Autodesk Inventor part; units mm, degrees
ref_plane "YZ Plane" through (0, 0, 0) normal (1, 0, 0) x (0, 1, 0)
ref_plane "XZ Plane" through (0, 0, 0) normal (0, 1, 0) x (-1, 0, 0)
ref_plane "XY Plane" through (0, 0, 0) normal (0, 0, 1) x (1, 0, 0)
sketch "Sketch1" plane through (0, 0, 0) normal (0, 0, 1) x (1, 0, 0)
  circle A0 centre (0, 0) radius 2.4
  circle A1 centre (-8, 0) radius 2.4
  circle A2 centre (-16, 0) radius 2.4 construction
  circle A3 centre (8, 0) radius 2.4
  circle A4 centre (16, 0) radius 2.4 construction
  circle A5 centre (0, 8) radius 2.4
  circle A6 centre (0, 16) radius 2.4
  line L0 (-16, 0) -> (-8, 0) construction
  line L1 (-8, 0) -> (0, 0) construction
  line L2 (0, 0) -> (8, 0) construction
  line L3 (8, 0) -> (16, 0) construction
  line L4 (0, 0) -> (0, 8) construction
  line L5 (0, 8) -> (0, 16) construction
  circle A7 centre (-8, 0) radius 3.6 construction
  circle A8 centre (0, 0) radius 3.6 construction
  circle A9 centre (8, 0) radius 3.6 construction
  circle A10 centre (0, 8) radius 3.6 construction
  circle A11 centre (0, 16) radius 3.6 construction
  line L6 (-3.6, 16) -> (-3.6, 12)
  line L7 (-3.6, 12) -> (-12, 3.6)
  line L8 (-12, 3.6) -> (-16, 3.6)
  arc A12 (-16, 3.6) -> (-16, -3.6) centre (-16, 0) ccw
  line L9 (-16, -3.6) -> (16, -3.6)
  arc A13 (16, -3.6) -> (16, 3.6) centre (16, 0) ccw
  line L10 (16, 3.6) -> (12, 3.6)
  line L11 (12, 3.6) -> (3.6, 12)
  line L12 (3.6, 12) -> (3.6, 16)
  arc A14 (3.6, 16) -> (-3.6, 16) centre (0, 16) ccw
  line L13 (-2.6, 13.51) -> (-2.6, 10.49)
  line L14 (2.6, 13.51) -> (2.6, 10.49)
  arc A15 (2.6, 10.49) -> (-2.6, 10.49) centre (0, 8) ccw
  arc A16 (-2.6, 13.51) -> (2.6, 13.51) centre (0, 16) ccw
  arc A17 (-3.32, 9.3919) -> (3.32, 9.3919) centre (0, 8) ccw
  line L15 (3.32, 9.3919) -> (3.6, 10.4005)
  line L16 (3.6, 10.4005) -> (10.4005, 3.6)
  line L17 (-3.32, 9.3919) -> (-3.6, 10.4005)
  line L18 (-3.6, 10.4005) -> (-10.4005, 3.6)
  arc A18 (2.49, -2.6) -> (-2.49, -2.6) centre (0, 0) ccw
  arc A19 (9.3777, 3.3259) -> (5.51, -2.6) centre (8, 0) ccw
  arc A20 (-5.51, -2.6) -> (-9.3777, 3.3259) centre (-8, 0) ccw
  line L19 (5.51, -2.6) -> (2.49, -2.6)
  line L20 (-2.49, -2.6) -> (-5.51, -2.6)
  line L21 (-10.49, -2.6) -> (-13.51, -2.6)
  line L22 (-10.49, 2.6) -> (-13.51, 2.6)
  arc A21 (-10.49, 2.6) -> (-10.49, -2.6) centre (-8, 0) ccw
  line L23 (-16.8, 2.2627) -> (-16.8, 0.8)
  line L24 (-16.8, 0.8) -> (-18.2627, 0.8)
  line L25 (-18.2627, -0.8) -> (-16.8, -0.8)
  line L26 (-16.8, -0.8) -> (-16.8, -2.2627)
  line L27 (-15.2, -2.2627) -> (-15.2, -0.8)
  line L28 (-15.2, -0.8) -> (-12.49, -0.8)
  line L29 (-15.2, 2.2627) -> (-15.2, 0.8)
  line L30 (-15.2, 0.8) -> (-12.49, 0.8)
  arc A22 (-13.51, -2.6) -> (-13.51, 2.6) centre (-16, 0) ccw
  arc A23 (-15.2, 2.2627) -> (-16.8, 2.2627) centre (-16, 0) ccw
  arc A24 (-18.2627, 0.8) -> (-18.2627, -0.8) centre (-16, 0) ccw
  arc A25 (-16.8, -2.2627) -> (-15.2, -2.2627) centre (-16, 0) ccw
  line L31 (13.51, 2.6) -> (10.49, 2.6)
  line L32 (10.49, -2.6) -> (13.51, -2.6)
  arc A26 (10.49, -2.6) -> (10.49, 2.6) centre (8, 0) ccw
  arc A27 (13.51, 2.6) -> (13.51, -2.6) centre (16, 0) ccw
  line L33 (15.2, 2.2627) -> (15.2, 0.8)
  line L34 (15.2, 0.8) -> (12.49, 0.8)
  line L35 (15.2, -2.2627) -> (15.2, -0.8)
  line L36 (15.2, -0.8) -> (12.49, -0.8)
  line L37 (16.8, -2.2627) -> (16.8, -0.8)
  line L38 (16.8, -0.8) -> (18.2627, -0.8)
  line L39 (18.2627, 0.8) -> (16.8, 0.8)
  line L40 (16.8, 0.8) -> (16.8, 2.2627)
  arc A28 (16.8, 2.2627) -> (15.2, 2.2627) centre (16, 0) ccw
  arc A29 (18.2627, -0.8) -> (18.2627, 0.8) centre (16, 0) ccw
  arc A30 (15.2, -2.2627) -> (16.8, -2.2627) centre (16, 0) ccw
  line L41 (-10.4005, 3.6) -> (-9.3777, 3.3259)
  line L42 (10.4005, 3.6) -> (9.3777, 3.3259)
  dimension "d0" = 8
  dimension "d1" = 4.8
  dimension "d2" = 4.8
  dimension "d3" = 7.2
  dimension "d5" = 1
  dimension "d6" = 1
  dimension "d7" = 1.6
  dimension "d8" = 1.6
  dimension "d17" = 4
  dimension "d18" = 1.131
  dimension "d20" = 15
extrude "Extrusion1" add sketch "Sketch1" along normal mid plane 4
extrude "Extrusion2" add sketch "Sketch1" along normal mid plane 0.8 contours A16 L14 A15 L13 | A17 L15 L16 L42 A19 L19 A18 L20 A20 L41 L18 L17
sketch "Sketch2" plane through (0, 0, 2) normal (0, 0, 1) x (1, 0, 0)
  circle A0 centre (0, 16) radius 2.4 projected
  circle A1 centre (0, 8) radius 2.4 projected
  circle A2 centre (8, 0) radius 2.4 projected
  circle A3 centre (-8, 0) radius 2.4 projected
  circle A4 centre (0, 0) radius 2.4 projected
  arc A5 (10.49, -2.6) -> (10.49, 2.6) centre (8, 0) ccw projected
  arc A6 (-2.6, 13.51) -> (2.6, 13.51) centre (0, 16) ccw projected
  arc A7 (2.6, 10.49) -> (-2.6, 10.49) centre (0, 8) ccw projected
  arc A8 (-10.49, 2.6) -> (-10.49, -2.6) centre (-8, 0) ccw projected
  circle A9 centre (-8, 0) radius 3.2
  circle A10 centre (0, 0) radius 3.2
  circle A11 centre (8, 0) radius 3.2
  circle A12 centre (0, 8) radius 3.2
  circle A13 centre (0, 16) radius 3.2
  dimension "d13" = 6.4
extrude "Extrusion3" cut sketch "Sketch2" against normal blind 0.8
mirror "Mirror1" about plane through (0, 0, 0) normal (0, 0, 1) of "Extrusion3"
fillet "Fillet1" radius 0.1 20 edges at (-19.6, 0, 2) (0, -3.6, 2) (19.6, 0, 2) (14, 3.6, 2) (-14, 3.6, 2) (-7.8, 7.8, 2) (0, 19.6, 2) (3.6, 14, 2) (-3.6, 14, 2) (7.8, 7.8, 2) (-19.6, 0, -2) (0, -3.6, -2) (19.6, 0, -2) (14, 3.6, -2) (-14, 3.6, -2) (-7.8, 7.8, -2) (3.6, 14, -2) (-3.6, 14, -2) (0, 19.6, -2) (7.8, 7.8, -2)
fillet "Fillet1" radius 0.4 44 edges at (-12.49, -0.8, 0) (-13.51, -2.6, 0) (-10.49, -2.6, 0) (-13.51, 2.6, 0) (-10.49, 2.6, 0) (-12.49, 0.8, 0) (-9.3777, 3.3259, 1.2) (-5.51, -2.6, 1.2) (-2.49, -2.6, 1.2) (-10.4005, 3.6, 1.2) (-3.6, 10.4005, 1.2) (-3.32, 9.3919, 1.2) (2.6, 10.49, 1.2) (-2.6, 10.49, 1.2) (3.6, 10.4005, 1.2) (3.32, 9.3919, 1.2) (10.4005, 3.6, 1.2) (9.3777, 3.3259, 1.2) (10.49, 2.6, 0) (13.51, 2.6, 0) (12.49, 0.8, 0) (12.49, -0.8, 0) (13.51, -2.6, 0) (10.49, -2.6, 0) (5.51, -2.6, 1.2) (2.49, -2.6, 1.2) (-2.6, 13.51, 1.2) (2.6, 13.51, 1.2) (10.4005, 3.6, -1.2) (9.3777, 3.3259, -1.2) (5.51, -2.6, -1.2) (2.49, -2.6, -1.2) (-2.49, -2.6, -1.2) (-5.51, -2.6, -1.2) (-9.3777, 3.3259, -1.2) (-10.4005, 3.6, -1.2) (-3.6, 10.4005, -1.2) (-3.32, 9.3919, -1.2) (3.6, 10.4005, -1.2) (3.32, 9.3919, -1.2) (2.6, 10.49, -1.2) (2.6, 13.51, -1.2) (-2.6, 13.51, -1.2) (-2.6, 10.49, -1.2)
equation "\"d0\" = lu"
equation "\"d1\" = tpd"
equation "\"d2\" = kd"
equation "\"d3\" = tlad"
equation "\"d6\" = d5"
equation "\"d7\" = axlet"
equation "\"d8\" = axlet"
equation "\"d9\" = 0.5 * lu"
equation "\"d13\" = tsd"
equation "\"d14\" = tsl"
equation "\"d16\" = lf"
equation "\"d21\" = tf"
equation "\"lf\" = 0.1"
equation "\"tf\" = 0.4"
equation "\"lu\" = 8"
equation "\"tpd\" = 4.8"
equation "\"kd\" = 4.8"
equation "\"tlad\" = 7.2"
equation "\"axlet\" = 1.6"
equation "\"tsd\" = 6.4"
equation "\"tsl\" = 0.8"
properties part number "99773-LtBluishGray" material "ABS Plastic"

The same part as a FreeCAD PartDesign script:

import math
import FreeCAD as App
import Part
import Sketcher
from FreeCAD import Vector


def edges_at(feature, points):
    """Names of the edges that pass closest to the given points."""
    edges = feature.Shape.Edges
    near = lambda p: min(range(len(edges)), key=lambda i: edges[i].distToShape(Part.Vertex(*p))[0])
    return sorted({f"Edge{near(p) + 1}" for p in points})

doc = App.newDocument("Part")
body = doc.addObject("PartDesign::Body", "Body")

sketch1 = doc.addObject("Sketcher::SketchObject", "Sketch")
body.addObject(sketch1)
sketch1.AttachmentSupport = (doc.XY_Plane, [""])
sketch1.MapMode = "FlatFace"
sketch1.addGeometry([
    Part.ArcOfCircle(Part.Circle(Vector(0, 16, 0), Vector(0, 0, 1), 3.6), math.radians(0), math.radians(180)),
    Part.LineSegment(Vector(-3.6, 16, 0), Vector(-3.6, 12, 0)),
    Part.LineSegment(Vector(-3.6, 12, 0), Vector(-12, 3.6, 0)),
    Part.LineSegment(Vector(-12, 3.6, 0), Vector(-16, 3.6, 0)),
    Part.ArcOfCircle(Part.Circle(Vector(-16, 0, 0), Vector(0, 0, 1), 3.6), math.radians(90), math.radians(270)),
    Part.LineSegment(Vector(-16, -3.6, 0), Vector(16, -3.6, 0)),
    Part.ArcOfCircle(Part.Circle(Vector(16, 0, 0), Vector(0, 0, 1), 3.6), math.radians(-90), math.radians(90)),
    Part.LineSegment(Vector(16, 3.6, 0), Vector(12, 3.6, 0)),
    Part.LineSegment(Vector(12, 3.6, 0), Vector(3.6, 12, 0)),
    Part.LineSegment(Vector(3.6, 12, 0), Vector(3.6, 16, 0)),
    Part.ArcOfCircle(Part.Circle(Vector(-8, 0, 0), Vector(0, 0, 1), 3.6), math.radians(134), math.radians(226)),
    Part.LineSegment(Vector(-10.5, -2.6, 0), Vector(-13.5, -2.6, 0)),
    Part.ArcOfCircle(Part.Circle(Vector(-16, 0, 0), Vector(0, 0, 1), 3.6), math.radians(-46), math.radians(-13)),
    Part.LineSegment(Vector(-12.5, -0.8, 0), Vector(-15.2, -0.8, 0)),
    Part.LineSegment(Vector(-15.2, -0.8, 0), Vector(-15.2, -2.3, 0)),
    Part.ArcOfCircle(Part.Circle(Vector(-16, 0, 0), Vector(0, 0, 1), 2.4), math.radians(-109), math.radians(-71)),
    Part.LineSegment(Vector(-16.8, -2.3, 0), Vector(-16.8, -0.8, 0)),
    Part.LineSegment(Vector(-16.8, -0.8, 0), Vector(-18.3, -0.8, 0)),
    Part.ArcOfCircle(Part.Circle(Vector(-16, 0, 0), Vector(0, 0, 1), 2.4), math.radians(161), math.radians(199)),
    Part.LineSegment(Vector(-18.3, 0.8, 0), Vector(-16.8, 0.8, 0)),
    Part.LineSegment(Vector(-16.8, 0.8, 0), Vector(-16.8, 2.3, 0)),
    Part.ArcOfCircle(Part.Circle(Vector(-16, 0, 0), Vector(0, 0, 1), 2.4), math.radians(71), math.radians(109)),
    Part.LineSegment(Vector(-15.2, 2.3, 0), Vector(-15.2, 0.8, 0)),
    Part.LineSegment(Vector(-15.2, 0.8, 0), Vector(-12.5, 0.8, 0)),
    Part.ArcOfCircle(Part.Circle(Vector(-16, 0, 0), Vector(0, 0, 1), 3.6), math.radians(13), math.radians(46)),
    Part.LineSegment(Vector(-13.5, 2.6, 0), Vector(-10.5, 2.6, 0)),
    Part.Circle(Vector(-8, 0, 0), Vector(0, 0, 1), 2.4),
    Part.Circle(Vector(0, 0, 0), Vector(0, 0, 1), 2.4),
    Part.Circle(Vector(8, 0, 0), Vector(0, 0, 1), 2.4),
    Part.LineSegment(Vector(10.5, 2.6, 0), Vector(13.5, 2.6, 0)),
    Part.ArcOfCircle(Part.Circle(Vector(16, 0, 0), Vector(0, 0, 1), 3.6), math.radians(134), math.radians(167)),
    Part.LineSegment(Vector(12.5, 0.8, 0), Vector(15.2, 0.8, 0)),
    Part.LineSegment(Vector(15.2, 0.8, 0), Vector(15.2, 2.3, 0)),
    Part.ArcOfCircle(Part.Circle(Vector(16, 0, 0), Vector(0, 0, 1), 2.4), math.radians(71), math.radians(109)),
    Part.LineSegment(Vector(16.8, 2.3, 0), Vector(16.8, 0.8, 0)),
    Part.LineSegment(Vector(16.8, 0.8, 0), Vector(18.3, 0.8, 0)),
    Part.ArcOfCircle(Part.Circle(Vector(16, 0, 0), Vector(0, 0, 1), 2.4), math.radians(-19), math.radians(19)),
    Part.LineSegment(Vector(18.3, -0.8, 0), Vector(16.8, -0.8, 0)),
    Part.LineSegment(Vector(16.8, -0.8, 0), Vector(16.8, -2.3, 0)),
    Part.ArcOfCircle(Part.Circle(Vector(16, 0, 0), Vector(0, 0, 1), 2.4), math.radians(-109), math.radians(-71)),
    Part.LineSegment(Vector(15.2, -2.3, 0), Vector(15.2, -0.8, 0)),
    Part.LineSegment(Vector(15.2, -0.8, 0), Vector(12.5, -0.8, 0)),
    Part.ArcOfCircle(Part.Circle(Vector(16, 0, 0), Vector(0, 0, 1), 3.6), math.radians(-167), math.radians(-134)),
    Part.LineSegment(Vector(13.5, -2.6, 0), Vector(10.5, -2.6, 0)),
    Part.ArcOfCircle(Part.Circle(Vector(8, 0, 0), Vector(0, 0, 1), 3.6), math.radians(-46), math.radians(46)),
    Part.LineSegment(Vector(-3.6, 10.4, 0), Vector(-3.3, 9.4, 0)),
    Part.ArcOfCircle(Part.Circle(Vector(0, 8, 0), Vector(0, 0, 1), 3.6), math.radians(157), math.radians(383)),
    Part.LineSegment(Vector(3.3, 9.4, 0), Vector(3.6, 10.4, 0)),
    Part.LineSegment(Vector(3.6, 10.4, 0), Vector(10.4, 3.6, 0)),
    Part.LineSegment(Vector(10.4, 3.6, 0), Vector(9.4, 3.3, 0)),
    Part.ArcOfCircle(Part.Circle(Vector(8, 0, 0), Vector(0, 0, 1), 3.6), math.radians(67), math.radians(226)),
    Part.LineSegment(Vector(5.5, -2.6, 0), Vector(2.5, -2.6, 0)),
    Part.ArcOfCircle(Part.Circle(Vector(0, 0, 0), Vector(0, 0, 1), 3.6), math.radians(-46), math.radians(226)),
    Part.LineSegment(Vector(-2.5, -2.6, 0), Vector(-5.5, -2.6, 0)),
    Part.ArcOfCircle(Part.Circle(Vector(-8, 0, 0), Vector(0, 0, 1), 3.6), math.radians(-46), math.radians(113)),
    Part.LineSegment(Vector(-9.4, 3.3, 0), Vector(-10.4, 3.6, 0)),
    Part.LineSegment(Vector(-10.4, 3.6, 0), Vector(-3.6, 10.4, 0)),
    Part.Circle(Vector(0, 8, 0), Vector(0, 0, 1), 2.4),
    Part.LineSegment(Vector(-2.6, 10.5, 0), Vector(-2.6, 13.5, 0)),
    Part.ArcOfCircle(Part.Circle(Vector(0, 16, 0), Vector(0, 0, 1), 3.6), math.radians(-136), math.radians(-44)),
    Part.LineSegment(Vector(2.6, 13.5, 0), Vector(2.6, 10.5, 0)),
    Part.ArcOfCircle(Part.Circle(Vector(0, 8, 0), Vector(0, 0, 1), 3.6), math.radians(44), math.radians(136)),
    Part.Circle(Vector(0, 16, 0), Vector(0, 0, 1), 2.4),
], False)
sketch1.addConstraint([
    Sketcher.Constraint("Tangent", 0, 2, 1, 1),
    Sketcher.Constraint("Coincident", 1, 2, 2, 1),
    Sketcher.Constraint("Coincident", 2, 2, 3, 1),
    Sketcher.Constraint("Tangent", 3, 2, 4, 1),
    Sketcher.Constraint("Tangent", 4, 2, 5, 1),
    Sketcher.Constraint("Tangent", 5, 2, 6, 1),
    Sketcher.Constraint("Tangent", 6, 2, 7, 1),
    Sketcher.Constraint("Coincident", 7, 2, 8, 1),
    Sketcher.Constraint("Coincident", 8, 2, 9, 1),
    Sketcher.Constraint("Tangent", 9, 2, 0, 1),
    Sketcher.Constraint("Coincident", 10, 2, 11, 1),
    Sketcher.Constraint("Coincident", 11, 2, 12, 1),
    Sketcher.Constraint("Coincident", 12, 2, 13, 1),
    Sketcher.Constraint("Coincident", 13, 2, 14, 1),
    Sketcher.Constraint("Coincident", 14, 2, 15, 2),
    Sketcher.Constraint("Coincident", 15, 1, 16, 1),
    Sketcher.Constraint("Coincident", 16, 2, 17, 1),
    Sketcher.Constraint("Coincident", 17, 2, 18, 2),
    Sketcher.Constraint("Coincident", 18, 1, 19, 1),
    Sketcher.Constraint("Coincident", 19, 2, 20, 1),
    Sketcher.Constraint("Coincident", 20, 2, 21, 2),
    Sketcher.Constraint("Coincident", 21, 1, 22, 1),
    Sketcher.Constraint("Coincident", 22, 2, 23, 1),
    Sketcher.Constraint("Coincident", 23, 2, 24, 1),
    Sketcher.Constraint("Coincident", 24, 2, 25, 1),
    Sketcher.Constraint("Coincident", 25, 2, 10, 1),
    Sketcher.Constraint("Coincident", 29, 2, 30, 1),
    Sketcher.Constraint("Coincident", 30, 2, 31, 1),
    Sketcher.Constraint("Coincident", 31, 2, 32, 1),
    Sketcher.Constraint("Coincident", 32, 2, 33, 2),
    Sketcher.Constraint("Coincident", 33, 1, 34, 1),
    Sketcher.Constraint("Coincident", 34, 2, 35, 1),
    Sketcher.Constraint("Coincident", 35, 2, 36, 2),
    Sketcher.Constraint("Coincident", 36, 1, 37, 1),
    Sketcher.Constraint("Coincident", 37, 2, 38, 1),
    Sketcher.Constraint("Coincident", 38, 2, 39, 2),
    Sketcher.Constraint("Coincident", 39, 1, 40, 1),
    Sketcher.Constraint("Coincident", 40, 2, 41, 1),
    Sketcher.Constraint("Coincident", 41, 2, 42, 1),
    Sketcher.Constraint("Coincident", 42, 2, 43, 1),
    Sketcher.Constraint("Coincident", 43, 2, 44, 1),
    Sketcher.Constraint("Coincident", 44, 2, 29, 1),
    Sketcher.Constraint("Coincident", 45, 2, 46, 1),
    Sketcher.Constraint("Coincident", 46, 2, 47, 1),
    Sketcher.Constraint("Coincident", 47, 2, 48, 1),
    Sketcher.Constraint("Coincident", 48, 2, 49, 1),
    Sketcher.Constraint("Coincident", 49, 2, 50, 1),
    Sketcher.Constraint("Coincident", 50, 2, 51, 1),
    Sketcher.Constraint("Coincident", 51, 2, 52, 1),
    Sketcher.Constraint("Coincident", 52, 2, 53, 1),
    Sketcher.Constraint("Coincident", 53, 2, 54, 1),
    Sketcher.Constraint("Coincident", 54, 2, 55, 1),
    Sketcher.Constraint("Coincident", 55, 2, 56, 1),
    Sketcher.Constraint("Coincident", 56, 2, 45, 1),
    Sketcher.Constraint("Coincident", 58, 2, 59, 1),
    Sketcher.Constraint("Coincident", 59, 2, 60, 1),
    Sketcher.Constraint("Coincident", 60, 2, 61, 1),
    Sketcher.Constraint("Coincident", 61, 2, 58, 1),
    Sketcher.Constraint("Vertical", 1),
    Sketcher.Constraint("Horizontal", 3),
    Sketcher.Constraint("Horizontal", 5),
    Sketcher.Constraint("Horizontal", 7),
    Sketcher.Constraint("Vertical", 9),
    Sketcher.Constraint("Horizontal", 11),
    Sketcher.Constraint("Horizontal", 13),
    Sketcher.Constraint("Vertical", 14),
    Sketcher.Constraint("Vertical", 16),
    Sketcher.Constraint("Horizontal", 17),
    Sketcher.Constraint("Horizontal", 19),
    Sketcher.Constraint("Vertical", 20),
    Sketcher.Constraint("Vertical", 22),
    Sketcher.Constraint("Horizontal", 23),
    Sketcher.Constraint("Horizontal", 25),
    Sketcher.Constraint("Horizontal", 29),
    Sketcher.Constraint("Horizontal", 31),
    Sketcher.Constraint("Vertical", 32),
    Sketcher.Constraint("Vertical", 34),
    Sketcher.Constraint("Horizontal", 35),
    Sketcher.Constraint("Horizontal", 37),
    Sketcher.Constraint("Vertical", 38),
    Sketcher.Constraint("Vertical", 40),
    Sketcher.Constraint("Horizontal", 41),
    Sketcher.Constraint("Horizontal", 43),
    Sketcher.Constraint("Horizontal", 51),
    Sketcher.Constraint("Horizontal", 53),
    Sketcher.Constraint("Vertical", 58),
    Sketcher.Constraint("Vertical", 60),
    Sketcher.Constraint("Coincident", 27, 3, -1, 1),
    Sketcher.Constraint("Coincident", 52, 3, -1, 1),
    Sketcher.Constraint("Coincident", 12, 3, 4, 3),
    Sketcher.Constraint("Coincident", 15, 3, 4, 3),
    Sketcher.Constraint("Coincident", 18, 3, 4, 3),
    Sketcher.Constraint("Coincident", 21, 3, 4, 3),
    Sketcher.Constraint("Coincident", 24, 3, 4, 3),
    Sketcher.Constraint("Coincident", 26, 3, 10, 3),
    Sketcher.Constraint("Coincident", 30, 3, 6, 3),
    Sketcher.Constraint("Coincident", 33, 3, 6, 3),
    Sketcher.Constraint("Coincident", 36, 3, 6, 3),
    Sketcher.Constraint("Coincident", 39, 3, 6, 3),
    Sketcher.Constraint("Coincident", 42, 3, 6, 3),
    Sketcher.Constraint("Coincident", 44, 3, 28, 3),
    Sketcher.Constraint("Coincident", 50, 3, 28, 3),
    Sketcher.Constraint("Coincident", 54, 3, 10, 3),
    Sketcher.Constraint("Coincident", 57, 3, 46, 3),
    Sketcher.Constraint("Coincident", 59, 3, 0, 3),
    Sketcher.Constraint("Coincident", 61, 3, 46, 3),
    Sketcher.Constraint("Coincident", 62, 3, 0, 3),
    Sketcher.Constraint("Equal", 0, 4),
    Sketcher.Constraint("Equal", 4, 6),
    Sketcher.Constraint("Equal", 6, 10),
    Sketcher.Constraint("Equal", 10, 12),
    Sketcher.Constraint("Equal", 15, 18),
    Sketcher.Constraint("Equal", 18, 21),
    Sketcher.Constraint("Equal", 12, 24),
    Sketcher.Constraint("Equal", 21, 26),
    Sketcher.Constraint("Equal", 26, 27),
    Sketcher.Constraint("Equal", 27, 28),
    Sketcher.Constraint("Equal", 24, 30),
    Sketcher.Constraint("Equal", 28, 33),
    Sketcher.Constraint("Equal", 33, 36),
    Sketcher.Constraint("Equal", 36, 39),
    Sketcher.Constraint("Equal", 30, 42),
    Sketcher.Constraint("Equal", 42, 44),
    Sketcher.Constraint("Equal", 44, 46),
    Sketcher.Constraint("Equal", 46, 50),
    Sketcher.Constraint("Equal", 50, 52),
    Sketcher.Constraint("Equal", 52, 54),
    Sketcher.Constraint("Equal", 39, 57),
    Sketcher.Constraint("Equal", 54, 59),
    Sketcher.Constraint("Equal", 59, 61),
    Sketcher.Constraint("Equal", 57, 62),
    Sketcher.Constraint("Symmetric", 4, 3, 6, 3, -1, 1),
    Sketcher.Constraint("Symmetric", 10, 3, 28, 3, -1, 1),
    Sketcher.Constraint("Symmetric", 13, 2, 31, 2, -1, 1),
    Sketcher.Constraint("Symmetric", 16, 2, 34, 2, -1, 1),
    Sketcher.Constraint("Symmetric", 19, 2, 37, 2, -1, 1),
    Sketcher.Constraint("Symmetric", 22, 2, 40, 2, -1, 1),
    Sketcher.Constraint("Symmetric", 1, 2, 8, 2, -2),
    Sketcher.Constraint("Symmetric", 22, 2, 31, 2, -2),
    Sketcher.Constraint("Symmetric", 19, 2, 34, 2, -2),
    Sketcher.Constraint("Symmetric", 10, 2, 43, 2, -2),
    Sketcher.Constraint("Symmetric", 45, 2, 46, 2, -2),
    Sketcher.Constraint("Symmetric", 48, 2, 55, 2, -2),
    Sketcher.Constraint("Symmetric", 47, 2, 56, 2, -2),
    Sketcher.Constraint("Perpendicular", 2, 8),
    Sketcher.Constraint("Parallel", 8, 48),
    Sketcher.Constraint("Perpendicular", 48, 56),
    Sketcher.Constraint("Horizontal", 14, 2, 15, 1),
    Sketcher.Constraint("Horizontal", 13, 2, 16, 2),
    Sketcher.Constraint("Horizontal", 25, 2, 29, 2),
    Sketcher.Constraint("Horizontal", 7, 2, 48, 2),
    Sketcher.Constraint("Horizontal", 43, 2, 50, 2),
    Sketcher.Constraint("Horizontal", 51, 2, 52, 2),
    Sketcher.Constraint("Horizontal", 49, 2, 54, 2),
    Sketcher.Constraint("Horizontal", 58, 2, 59, 2),
    Sketcher.Constraint("Vertical", 11, 2, 24, 2),
    Sketcher.Constraint("Vertical", 9, 2, 47, 2),
    Sketcher.Constraint("Equal", 43, 51),
    Sketcher.Constraint("Equal", 7, 1),
    Sketcher.Constraint("Equal", 37, 14),
    Sketcher.Constraint("Equal", 53, 58),
    Sketcher.Constraint("Diameter", 26, 4.8),
    Sketcher.Constraint("Radius", 0, 3.6),
    Sketcher.Constraint("DistanceX", 3, 2, 3, 1, 4.0),
    Sketcher.Constraint("DistanceX", 10, 3, -1, 1, 8.0),
    Sketcher.Constraint("DistanceY", -1, 1, 46, 3, 8.0),
    Sketcher.Constraint("DistanceX", 11, 2, 11, 1, 3.02),
    Sketcher.Constraint("DistanceX", 13, 2, 13, 1, 2.71),
    Sketcher.Constraint("DistanceX", 45, 2, -1, 1, 3.32),
    Sketcher.Constraint("Distance", 49, 1.059),
    Sketcher.Constraint("DistanceY", -1, 1, 49, 2, 3.326),
])
pad1 = doc.addObject("PartDesign::Pad", "Pad")
body.addObject(pad1)
pad1.Profile = sketch1
pad1.Length = 4
pad1.Midplane = True

sketch2 = doc.addObject("Sketcher::SketchObject", "Sketch001")
body.addObject(sketch2)
sketch2.AttachmentSupport = (doc.XY_Plane, [""])
sketch2.MapMode = "FlatFace"
sketch2.addGeometry([
    Part.ArcOfCircle(Part.Circle(Vector(0, 16, 0), Vector(0, 0, 1), 3.6), math.radians(-136), math.radians(-44)),
    Part.LineSegment(Vector(-2.6, 13.5, 0), Vector(-2.6, 10.5, 0)),
    Part.ArcOfCircle(Part.Circle(Vector(0, 8, 0), Vector(0, 0, 1), 3.6), math.radians(44), math.radians(136)),
    Part.LineSegment(Vector(2.6, 10.5, 0), Vector(2.6, 13.5, 0)),
    Part.ArcOfCircle(Part.Circle(Vector(0, 8, 0), Vector(0, 0, 1), 3.6), math.radians(157), math.radians(383)),
    Part.LineSegment(Vector(-3.3, 9.4, 0), Vector(-3.6, 10.4, 0)),
    Part.LineSegment(Vector(-3.6, 10.4, 0), Vector(-10.4, 3.6, 0)),
    Part.LineSegment(Vector(-10.4, 3.6, 0), Vector(-9.4, 3.3, 0)),
    Part.ArcOfCircle(Part.Circle(Vector(-8, 0, 0), Vector(0, 0, 1), 3.6), math.radians(-46), math.radians(113)),
    Part.LineSegment(Vector(-5.5, -2.6, 0), Vector(-2.5, -2.6, 0)),
    Part.ArcOfCircle(Part.Circle(Vector(0, 0, 0), Vector(0, 0, 1), 3.6), math.radians(-46), math.radians(226)),
    Part.LineSegment(Vector(2.5, -2.6, 0), Vector(5.5, -2.6, 0)),
    Part.ArcOfCircle(Part.Circle(Vector(8, 0, 0), Vector(0, 0, 1), 3.6), math.radians(67), math.radians(226)),
    Part.LineSegment(Vector(9.4, 3.3, 0), Vector(10.4, 3.6, 0)),
    Part.LineSegment(Vector(10.4, 3.6, 0), Vector(3.6, 10.4, 0)),
    Part.LineSegment(Vector(3.6, 10.4, 0), Vector(3.3, 9.4, 0)),
], False)
sketch2.addConstraint([
    Sketcher.Constraint("Coincident", 0, 1, 1, 1),
    Sketcher.Constraint("Coincident", 1, 2, 2, 2),
    Sketcher.Constraint("Coincident", 2, 1, 3, 1),
    Sketcher.Constraint("Coincident", 3, 2, 0, 2),
    Sketcher.Constraint("Coincident", 4, 1, 5, 1),
    Sketcher.Constraint("Coincident", 5, 2, 6, 1),
    Sketcher.Constraint("Coincident", 6, 2, 7, 1),
    Sketcher.Constraint("Coincident", 7, 2, 8, 2),
    Sketcher.Constraint("Coincident", 8, 1, 9, 1),
    Sketcher.Constraint("Coincident", 9, 2, 10, 2),
    Sketcher.Constraint("Coincident", 10, 1, 11, 1),
    Sketcher.Constraint("Coincident", 11, 2, 12, 2),
    Sketcher.Constraint("Coincident", 12, 1, 13, 1),
    Sketcher.Constraint("Coincident", 13, 2, 14, 1),
    Sketcher.Constraint("Coincident", 14, 2, 15, 1),
    Sketcher.Constraint("Coincident", 15, 2, 4, 2),
    Sketcher.Constraint("Vertical", 1),
    Sketcher.Constraint("Vertical", 3),
    Sketcher.Constraint("Horizontal", 9),
    Sketcher.Constraint("Horizontal", 11),
    Sketcher.Constraint("Coincident", 10, 3, -1, 1),
    Sketcher.Constraint("Coincident", 4, 3, 2, 3),
    Sketcher.Constraint("Equal", 0, 2),
    Sketcher.Constraint("Equal", 2, 4),
    Sketcher.Constraint("Equal", 4, 8),
    Sketcher.Constraint("Equal", 8, 10),
    Sketcher.Constraint("Equal", 10, 12),
    Sketcher.Constraint("Symmetric", 8, 3, 12, 3, -1, 1),
    Sketcher.Constraint("Symmetric", 1, 2, 2, 1, -2),
    Sketcher.Constraint("Symmetric", 8, 1, 11, 2, -2),
    Sketcher.Constraint("Symmetric", 6, 2, 13, 2, -2),
    Sketcher.Constraint("Symmetric", 5, 2, 14, 2, -2),
    Sketcher.Constraint("PointOnObject", 0, 3, -2),
    Sketcher.Constraint("Perpendicular", 6, 14),
    Sketcher.Constraint("Horizontal", 7, 2, 12, 1),
    Sketcher.Constraint("Horizontal", 4, 1, 15, 2),
    Sketcher.Constraint("Equal", 11, 1),
    Sketcher.Constraint("Radius", 0, 3.6),
    Sketcher.Constraint("DistanceY", -1, 1, 2, 3, 8.0),
    Sketcher.Constraint("DistanceX", 8, 3, -1, 1, 8.0),
    Sketcher.Constraint("DistanceY", 2, 3, 0, 3, 8.0),
    Sketcher.Constraint("DistanceX", 5, 2, 1, 2, 1.0),
    Sketcher.Constraint("DistanceX", 9, 1, 9, 2, 3.02),
    Sketcher.Constraint("DistanceY", -1, 1, 6, 2, 3.6),
    Sketcher.Constraint("DistanceX", 4, 1, -1, 1, 3.32),
    Sketcher.Constraint("Distance", 7, 1.059),
    Sketcher.Constraint("DistanceY", -1, 1, 7, 2, 3.326),
])
pad2 = doc.addObject("PartDesign::Pad", "Pad001")
body.addObject(pad2)
pad2.Profile = sketch2
pad2.Length = 0.8
pad2.Midplane = True

sketch3 = doc.addObject("Sketcher::SketchObject", "Sketch002")
body.addObject(sketch3)
sketch3.AttachmentSupport = (doc.XY_Plane, [""])
sketch3.MapMode = "FlatFace"
sketch3.AttachmentOffset = App.Placement(Vector(0, 0, 2), App.Rotation())
sketch3.addGeometry([
    Part.Circle(Vector(-8, 0, 0), Vector(0, 0, 1), 3.2),
    Part.Circle(Vector(-8, 0, 0), Vector(0, 0, 1), 2.4),
    Part.Circle(Vector(0, 0, 0), Vector(0, 0, 1), 3.2),
    Part.Circle(Vector(0, 0, 0), Vector(0, 0, 1), 2.4),
    Part.Circle(Vector(8, 0, 0), Vector(0, 0, 1), 3.2),
    Part.Circle(Vector(8, 0, 0), Vector(0, 0, 1), 2.4),
    Part.Circle(Vector(0, 8, 0), Vector(0, 0, 1), 3.2),
    Part.Circle(Vector(0, 8, 0), Vector(0, 0, 1), 2.4),
    Part.Circle(Vector(0, 16, 0), Vector(0, 0, 1), 3.2),
    Part.Circle(Vector(0, 16, 0), Vector(0, 0, 1), 2.4),
], False)
sketch3.addConstraint([
    Sketcher.Constraint("Coincident", 2, 3, -1, 1),
    Sketcher.Constraint("Coincident", 3, 3, -1, 1),
    Sketcher.Constraint("Coincident", 1, 3, 0, 3),
    Sketcher.Constraint("Coincident", 5, 3, 4, 3),
    Sketcher.Constraint("Coincident", 7, 3, 6, 3),
    Sketcher.Constraint("Coincident", 9, 3, 8, 3),
    Sketcher.Constraint("Equal", 0, 2),
    Sketcher.Constraint("Equal", 1, 3),
    Sketcher.Constraint("Equal", 2, 4),
    Sketcher.Constraint("Equal", 3, 5),
    Sketcher.Constraint("Equal", 4, 6),
    Sketcher.Constraint("Equal", 5, 7),
    Sketcher.Constraint("Equal", 6, 8),
    Sketcher.Constraint("Equal", 7, 9),
    Sketcher.Constraint("Symmetric", 0, 3, 4, 3, -1, 1),
    Sketcher.Constraint("PointOnObject", 0, 3, -1),
    Sketcher.Constraint("PointOnObject", 6, 3, -2),
    Sketcher.Constraint("PointOnObject", 8, 3, -2),
    Sketcher.Constraint("Diameter", 0, 6.4),
    Sketcher.Constraint("Diameter", 1, 4.8),
    Sketcher.Constraint("DistanceX", 0, 3, -1, 1, 8.0),
    Sketcher.Constraint("DistanceY", -1, 1, 6, 3, 8.0),
    Sketcher.Constraint("DistanceY", -1, 1, 8, 3, 16.0),
])
pocket1 = doc.addObject("PartDesign::Pocket", "Pocket")
body.addObject(pocket1)
pocket1.Profile = sketch3
pocket1.Length = 0.8
doc.recompute()

mirrored = doc.addObject("PartDesign::Mirrored", "Mirrored")
body.addObject(mirrored)
mirrored.Originals = [pocket1]
mirrored.MirrorPlane = (doc.XY_Plane, [""])
body.Tip = mirrored
doc.recompute()

fillet = doc.addObject("PartDesign::Fillet", "Fillet")
body.addObject(fillet)
fillet.Base = (mirrored, edges_at(mirrored, [
    (-19.6, 0, 2),
    (0, -3.6, 2),
    (19.6, 0, 2),
    (14, 3.6, 2),
    (-14, 3.6, 2),
    (-7.8, 7.8, 2),
    (0, 19.6, 2),
    (3.6, 14, 2),
    (-3.6, 14, 2),
    (7.8, 7.8, 2),
    (-19.6, 0, -2),
    (0, -3.6, -2),
    (19.6, 0, -2),
    (14, 3.6, -2),
    (-14, 3.6, -2),
    (-7.8, 7.8, -2),
    (3.6, 14, -2),
    (-3.6, 14, -2),
    (0, 19.6, -2),
    (7.8, 7.8, -2),
]))
fillet.Radius = 0.1
doc.recompute()

fillet2 = doc.addObject("PartDesign::Fillet", "Fillet001")
body.addObject(fillet2)
fillet2.Base = (fillet, edges_at(fillet, [
    (-12.49, -0.8, 0),
    (-13.51, -2.6, 0),
    (-10.49, -2.6, 0),
    (-13.51, 2.6, 0),
    (-10.49, 2.6, 0),
    (-12.49, 0.8, 0),
    (-9.378, 3.326, 1.2),
    (-5.51, -2.6, 1.2),
    (-2.49, -2.6, 1.2),
    (-10.4, 3.6, 1.2),
    (-3.6, 10.4, 1.2),
    (-3.32, 9.392, 1.2),
    (2.6, 10.49, 1.2),
    (-2.6, 10.49, 1.2),
    (3.6, 10.4, 1.2),
    (3.32, 9.392, 1.2),
    (10.4, 3.6, 1.2),
    (9.378, 3.326, 1.2),
    (10.49, 2.6, 0),
    (13.51, 2.6, 0),
    (12.49, 0.8, 0),
    (12.49, -0.8, 0),
    (13.51, -2.6, 0),
    (10.49, -2.6, 0),
    (5.51, -2.6, 1.2),
    (2.49, -2.6, 1.2),
    (-2.6, 13.51, 1.2),
    (2.6, 13.51, 1.2),
    (10.4, 3.6, -1.2),
    (9.378, 3.326, -1.2),
    (5.51, -2.6, -1.2),
    (2.49, -2.6, -1.2),
    (-2.49, -2.6, -1.2),
    (-5.51, -2.6, -1.2),
    (-9.378, 3.326, -1.2),
    (-10.4, 3.6, -1.2),
    (-3.6, 10.4, -1.2),
    (-3.32, 9.392, -1.2),
    (3.6, 10.4, -1.2),
    (3.32, 9.392, -1.2),
    (2.6, 10.49, -1.2),
    (2.6, 13.51, -1.2),
    (-2.6, 13.51, -1.2),
    (-2.6, 10.49, -1.2),
]))
fillet2.Radius = 0.4

doc.recompute()
